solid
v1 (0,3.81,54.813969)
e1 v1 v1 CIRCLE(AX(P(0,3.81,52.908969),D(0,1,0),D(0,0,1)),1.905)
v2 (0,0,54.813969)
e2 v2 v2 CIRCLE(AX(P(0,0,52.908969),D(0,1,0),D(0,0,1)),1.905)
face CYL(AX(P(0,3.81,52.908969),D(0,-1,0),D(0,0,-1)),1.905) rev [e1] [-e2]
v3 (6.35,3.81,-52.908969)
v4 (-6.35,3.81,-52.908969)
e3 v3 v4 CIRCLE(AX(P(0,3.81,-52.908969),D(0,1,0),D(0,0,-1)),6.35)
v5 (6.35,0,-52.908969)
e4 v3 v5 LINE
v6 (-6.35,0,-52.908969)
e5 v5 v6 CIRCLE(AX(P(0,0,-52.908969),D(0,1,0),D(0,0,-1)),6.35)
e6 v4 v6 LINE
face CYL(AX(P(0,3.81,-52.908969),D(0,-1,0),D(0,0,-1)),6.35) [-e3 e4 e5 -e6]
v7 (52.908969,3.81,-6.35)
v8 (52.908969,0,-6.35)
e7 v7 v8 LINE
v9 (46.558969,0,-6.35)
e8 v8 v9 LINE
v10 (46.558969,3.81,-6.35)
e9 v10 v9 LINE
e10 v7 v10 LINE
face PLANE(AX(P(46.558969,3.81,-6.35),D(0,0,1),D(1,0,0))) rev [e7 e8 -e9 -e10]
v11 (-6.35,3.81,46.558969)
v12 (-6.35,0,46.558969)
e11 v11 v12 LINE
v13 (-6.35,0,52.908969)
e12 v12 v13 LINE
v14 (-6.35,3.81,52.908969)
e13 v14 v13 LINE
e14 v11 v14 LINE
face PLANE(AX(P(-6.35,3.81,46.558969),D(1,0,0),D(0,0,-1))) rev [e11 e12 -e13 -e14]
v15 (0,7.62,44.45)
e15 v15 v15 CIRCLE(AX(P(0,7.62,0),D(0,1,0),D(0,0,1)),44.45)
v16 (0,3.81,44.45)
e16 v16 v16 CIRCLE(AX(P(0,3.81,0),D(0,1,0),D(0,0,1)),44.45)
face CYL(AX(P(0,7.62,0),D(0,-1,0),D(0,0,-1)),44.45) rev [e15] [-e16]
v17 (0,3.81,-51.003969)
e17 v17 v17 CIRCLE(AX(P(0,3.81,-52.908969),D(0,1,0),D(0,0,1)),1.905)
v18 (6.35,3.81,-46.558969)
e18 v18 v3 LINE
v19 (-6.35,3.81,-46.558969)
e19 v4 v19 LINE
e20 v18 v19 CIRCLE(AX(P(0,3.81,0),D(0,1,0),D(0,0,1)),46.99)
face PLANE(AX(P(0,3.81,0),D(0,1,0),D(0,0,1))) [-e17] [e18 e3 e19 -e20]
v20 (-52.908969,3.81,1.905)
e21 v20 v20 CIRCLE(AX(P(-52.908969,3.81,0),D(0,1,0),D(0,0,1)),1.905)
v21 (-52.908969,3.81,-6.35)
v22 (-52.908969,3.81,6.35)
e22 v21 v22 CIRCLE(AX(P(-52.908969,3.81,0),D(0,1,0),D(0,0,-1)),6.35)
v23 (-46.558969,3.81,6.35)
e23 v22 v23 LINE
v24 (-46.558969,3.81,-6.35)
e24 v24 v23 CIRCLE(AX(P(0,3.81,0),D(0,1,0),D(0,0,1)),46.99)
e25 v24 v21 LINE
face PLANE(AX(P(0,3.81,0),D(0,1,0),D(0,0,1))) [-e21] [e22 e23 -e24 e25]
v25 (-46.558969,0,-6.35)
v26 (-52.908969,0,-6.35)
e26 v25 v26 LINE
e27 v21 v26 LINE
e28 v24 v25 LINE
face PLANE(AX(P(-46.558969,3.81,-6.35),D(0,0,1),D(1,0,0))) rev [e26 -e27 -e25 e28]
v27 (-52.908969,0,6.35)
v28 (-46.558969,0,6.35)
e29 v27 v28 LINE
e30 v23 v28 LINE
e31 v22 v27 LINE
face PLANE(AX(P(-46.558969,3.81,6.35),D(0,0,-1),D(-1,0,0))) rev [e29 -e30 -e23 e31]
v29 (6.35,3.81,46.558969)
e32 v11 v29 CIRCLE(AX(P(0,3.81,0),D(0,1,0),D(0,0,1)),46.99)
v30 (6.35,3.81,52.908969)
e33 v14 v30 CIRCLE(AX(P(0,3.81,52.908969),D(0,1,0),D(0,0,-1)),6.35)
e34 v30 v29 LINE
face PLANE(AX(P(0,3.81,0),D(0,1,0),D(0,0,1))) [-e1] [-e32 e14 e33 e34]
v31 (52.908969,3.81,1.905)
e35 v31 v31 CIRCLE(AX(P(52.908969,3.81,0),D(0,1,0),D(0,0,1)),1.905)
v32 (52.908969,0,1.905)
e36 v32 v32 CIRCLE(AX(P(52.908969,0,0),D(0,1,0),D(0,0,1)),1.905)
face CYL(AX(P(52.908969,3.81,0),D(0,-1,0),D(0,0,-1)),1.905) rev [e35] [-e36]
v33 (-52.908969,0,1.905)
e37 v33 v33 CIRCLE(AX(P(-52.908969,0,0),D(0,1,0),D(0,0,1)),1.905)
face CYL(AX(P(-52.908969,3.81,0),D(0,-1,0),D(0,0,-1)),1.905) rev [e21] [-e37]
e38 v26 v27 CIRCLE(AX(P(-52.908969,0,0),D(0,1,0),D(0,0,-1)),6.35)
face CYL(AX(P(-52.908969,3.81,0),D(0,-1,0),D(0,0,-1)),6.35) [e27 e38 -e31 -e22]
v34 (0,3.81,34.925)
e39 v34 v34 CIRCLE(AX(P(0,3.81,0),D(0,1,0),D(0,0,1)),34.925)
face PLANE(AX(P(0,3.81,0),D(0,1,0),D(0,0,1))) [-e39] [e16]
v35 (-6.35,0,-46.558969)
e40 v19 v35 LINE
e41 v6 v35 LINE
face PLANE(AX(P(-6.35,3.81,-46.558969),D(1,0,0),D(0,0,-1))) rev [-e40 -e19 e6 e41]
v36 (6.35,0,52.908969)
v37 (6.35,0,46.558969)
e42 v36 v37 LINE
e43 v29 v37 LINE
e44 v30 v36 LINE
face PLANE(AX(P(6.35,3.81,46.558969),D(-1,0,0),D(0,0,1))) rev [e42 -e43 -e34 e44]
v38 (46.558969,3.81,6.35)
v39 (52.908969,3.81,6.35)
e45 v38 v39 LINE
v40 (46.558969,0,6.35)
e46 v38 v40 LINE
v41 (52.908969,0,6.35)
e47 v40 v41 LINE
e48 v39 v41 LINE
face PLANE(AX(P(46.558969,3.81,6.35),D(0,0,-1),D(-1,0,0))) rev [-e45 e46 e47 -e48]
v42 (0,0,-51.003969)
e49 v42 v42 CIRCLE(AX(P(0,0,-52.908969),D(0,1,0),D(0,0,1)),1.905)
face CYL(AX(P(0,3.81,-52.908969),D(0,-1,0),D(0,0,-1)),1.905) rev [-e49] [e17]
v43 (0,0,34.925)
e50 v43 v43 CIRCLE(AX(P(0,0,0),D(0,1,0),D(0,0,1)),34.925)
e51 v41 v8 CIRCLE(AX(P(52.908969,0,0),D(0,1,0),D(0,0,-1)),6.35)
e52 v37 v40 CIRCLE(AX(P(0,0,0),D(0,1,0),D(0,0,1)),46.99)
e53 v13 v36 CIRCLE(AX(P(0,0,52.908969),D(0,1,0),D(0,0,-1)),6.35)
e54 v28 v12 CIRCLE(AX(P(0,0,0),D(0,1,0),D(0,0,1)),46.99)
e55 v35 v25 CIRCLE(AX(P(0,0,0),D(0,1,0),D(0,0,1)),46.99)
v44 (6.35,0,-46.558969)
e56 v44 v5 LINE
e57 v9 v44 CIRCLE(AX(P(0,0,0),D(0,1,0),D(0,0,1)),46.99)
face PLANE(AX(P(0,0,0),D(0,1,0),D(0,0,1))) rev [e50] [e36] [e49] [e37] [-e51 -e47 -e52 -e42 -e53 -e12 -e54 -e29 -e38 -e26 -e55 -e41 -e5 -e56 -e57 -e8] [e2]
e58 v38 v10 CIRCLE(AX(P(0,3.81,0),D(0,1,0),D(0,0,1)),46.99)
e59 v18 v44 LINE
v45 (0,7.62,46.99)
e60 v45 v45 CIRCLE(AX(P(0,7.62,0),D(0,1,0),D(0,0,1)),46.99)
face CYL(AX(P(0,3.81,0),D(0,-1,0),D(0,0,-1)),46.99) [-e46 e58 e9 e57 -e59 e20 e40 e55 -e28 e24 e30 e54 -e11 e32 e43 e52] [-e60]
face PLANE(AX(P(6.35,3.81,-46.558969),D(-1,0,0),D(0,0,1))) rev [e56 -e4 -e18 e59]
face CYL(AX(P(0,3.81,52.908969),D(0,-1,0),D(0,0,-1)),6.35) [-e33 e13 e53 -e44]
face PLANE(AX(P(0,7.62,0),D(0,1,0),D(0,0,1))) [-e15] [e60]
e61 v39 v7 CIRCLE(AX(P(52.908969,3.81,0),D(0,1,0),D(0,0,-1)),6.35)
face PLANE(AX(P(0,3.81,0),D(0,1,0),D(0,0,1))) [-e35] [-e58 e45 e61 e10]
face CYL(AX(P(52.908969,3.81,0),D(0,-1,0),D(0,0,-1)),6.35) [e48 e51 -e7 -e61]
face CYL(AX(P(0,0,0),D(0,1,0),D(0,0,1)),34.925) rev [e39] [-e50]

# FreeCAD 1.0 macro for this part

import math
import FreeCAD as App
import Part
import Sketcher

V = App.Vector
Q = App.Units.Quantity

doc = App.newDocument("Part")
params = doc.addObject("Spreadsheet::Sheet", "Params")
for row, (alias, value) in enumerate([
    ("sketch1_diameter", "0.15 in"),
    ("sketch1_radius", "1.85 in"),
    ("sketch1_radius2", "0.25 in"),
    ("sketch1_width", "0.25 in"),
    ("pad1_length", "0.15 in"),
    ("sketch2_diameter", "2.75 in"),
    ("sketch3_diameter", "3.7 in"),
    ("sketch3_diameter2", "3.5 in"),
    ("pad2_length", "0.15 in"),
], start=1):
    params.set(f"A{row}", alias)
    params.set(f"B{row}", "=" + value)
    params.setAlias(f"B{row}", alias)

body = doc.addObject("PartDesign::Body", "Body")

# Sketch on XZ plane
sketch1 = body.newObject("Sketcher::SketchObject", "Sketch")
sketch1.AttachmentSupport = (doc.getObject("XZ_Plane"), [""])
sketch1.MapMode = "FlatFace"
sketch1.addGeometry([
    Part.LineSegment(V(52.9, -6.3, 0), V(46.6, -6.3, 0)),  # 0
    Part.ArcOfCircle(Part.Circle(V(0, 0, 0), V(0, 0, 1), 47), math.radians(-82), math.radians(-8)),  # 1
    Part.LineSegment(V(6.3, -46.6, 0), V(6.3, -52.9, 0)),  # 2
    Part.ArcOfCircle(Part.Circle(V(0, -52.9, 0), V(0, 0, 1), 6.3), math.radians(180), math.radians(360)),  # 3
    Part.LineSegment(V(-6.3, -52.9, 0), V(-6.3, -46.6, 0)),  # 4
    Part.ArcOfCircle(Part.Circle(V(0, 0, 0), V(0, 0, 1), 47), math.radians(-172), math.radians(-98)),  # 5
    Part.LineSegment(V(-46.6, -6.3, 0), V(-52.9, -6.3, 0)),  # 6
    Part.ArcOfCircle(Part.Circle(V(-52.9, 0, 0), V(0, 0, 1), 6.3), math.radians(90), math.radians(270)),  # 7
    Part.LineSegment(V(-52.9, 6.3, 0), V(-46.6, 6.3, 0)),  # 8
    Part.ArcOfCircle(Part.Circle(V(0, 0, 0), V(0, 0, 1), 47), math.radians(98), math.radians(172)),  # 9
    Part.LineSegment(V(-6.3, 46.6, 0), V(-6.3, 52.9, 0)),  # 10
    Part.ArcOfCircle(Part.Circle(V(0, 52.9, 0), V(0, 0, 1), 6.3), math.radians(0), math.radians(180)),  # 11
    Part.LineSegment(V(6.3, 52.9, 0), V(6.3, 46.6, 0)),  # 12
    Part.ArcOfCircle(Part.Circle(V(0, 0, 0), V(0, 0, 1), 47), math.radians(8), math.radians(82)),  # 13
    Part.LineSegment(V(46.6, 6.3, 0), V(52.9, 6.3, 0)),  # 14
    Part.ArcOfCircle(Part.Circle(V(52.9, 0, 0), V(0, 0, 1), 6.3), math.radians(-90), math.radians(90)),  # 15
    Part.Circle(V(0, 52.9, 0), V(0, 0, 1), 1.9),  # 16
    Part.Circle(V(52.9, 0, 0), V(0, 0, 1), 1.9),  # 17
    Part.Circle(V(-52.9, 0, 0), V(0, 0, 1), 1.9),  # 18
    Part.Circle(V(0, -52.9, 0), V(0, 0, 1), 1.9),  # 19
], False)
sketch1.addConstraint([
    Sketcher.Constraint("Coincident", 0, 2, 1, 2),
    Sketcher.Constraint("Coincident", 1, 1, 2, 1),
    Sketcher.Constraint("Tangent", 2, 2, 3, 2),
    Sketcher.Constraint("Tangent", 3, 1, 4, 1),
    Sketcher.Constraint("Coincident", 4, 2, 5, 2),
    Sketcher.Constraint("Coincident", 5, 1, 6, 1),
    Sketcher.Constraint("Tangent", 6, 2, 7, 2),
    Sketcher.Constraint("Tangent", 7, 1, 8, 1),
    Sketcher.Constraint("Coincident", 8, 2, 9, 2),
    Sketcher.Constraint("Coincident", 9, 1, 10, 1),
    Sketcher.Constraint("Tangent", 10, 2, 11, 2),
    Sketcher.Constraint("Tangent", 11, 1, 12, 1),
    Sketcher.Constraint("Coincident", 12, 2, 13, 2),
    Sketcher.Constraint("Coincident", 13, 1, 14, 1),
    Sketcher.Constraint("Tangent", 14, 2, 15, 2),
    Sketcher.Constraint("Tangent", 15, 1, 0, 1),
    Sketcher.Constraint("Horizontal", 0),
    Sketcher.Constraint("Vertical", 2),
    Sketcher.Constraint("Vertical", 4),
    Sketcher.Constraint("Horizontal", 6),
    Sketcher.Constraint("Horizontal", 8),
    Sketcher.Constraint("Vertical", 10),
    Sketcher.Constraint("Vertical", 12),
    Sketcher.Constraint("Horizontal", 14),
    Sketcher.Constraint("Coincident", 1, 3, -1, 1),
    Sketcher.Constraint("Coincident", 5, 3, -1, 1),
    Sketcher.Constraint("Coincident", 9, 3, -1, 1),
    Sketcher.Constraint("Coincident", 13, 3, -1, 1),
    Sketcher.Constraint("Coincident", 16, 3, 11, 3),
    Sketcher.Constraint("Coincident", 17, 3, 15, 3),
    Sketcher.Constraint("Coincident", 18, 3, 7, 3),
    Sketcher.Constraint("Coincident", 19, 3, 3, 3),
    Sketcher.Constraint("Equal", 1, 5),
    Sketcher.Constraint("Equal", 3, 7),
    Sketcher.Constraint("Equal", 5, 9),
    Sketcher.Constraint("Equal", 7, 11),
    Sketcher.Constraint("Equal", 9, 13),
    Sketcher.Constraint("Equal", 11, 15),
    Sketcher.Constraint("Equal", 16, 17),
    Sketcher.Constraint("Equal", 17, 18),
    Sketcher.Constraint("Equal", 18, 19),
    Sketcher.Constraint("Symmetric", 3, 3, 11, 3, -1, 1),
    Sketcher.Constraint("Symmetric", 7, 3, 15, 3, -1, 1),
    Sketcher.Constraint("PointOnObject", 3, 3, -2),
    Sketcher.Constraint("PointOnObject", 7, 3, -1),
    Sketcher.Constraint("Equal", 14, 2),
    Sketcher.Constraint("Diameter", 16, Q("0.15 in")),
    Sketcher.Constraint("Radius", 1, Q("1.85 in")),
    Sketcher.Constraint("Radius", 3, Q("0.25 in")),
    Sketcher.Constraint("DistanceX", 0, 2, 0, 1, Q("0.25 in")),
])
sketch1.setExpression("Constraints[46]", "Params.sketch1_diameter")
sketch1.setExpression("Constraints[47]", "Params.sketch1_radius")
sketch1.setExpression("Constraints[48]", "Params.sketch1_radius2")
sketch1.setExpression("Constraints[49]", "Params.sketch1_width")
pad1 = body.newObject("PartDesign::Pad", "Pad")
pad1.Profile = sketch1
pad1.setExpression("Length", "Params.pad1_length")
pad1.Reversed = True

# Sketch on XZ plane
sketch2 = body.newObject("Sketcher::SketchObject", "Sketch001")
sketch2.AttachmentSupport = (doc.getObject("XZ_Plane"), [""])
sketch2.MapMode = "FlatFace"
sketch2.AttachmentOffset = App.Placement(V(0, 0, -0.15 * 25.4), App.Rotation())
sketch2.addGeometry(Part.Circle(V(0, 0, 0), V(0, 0, 1), 35), False)
sketch2.addConstraint([
    Sketcher.Constraint("Coincident", 0, 3, -1, 1),
    Sketcher.Constraint("Diameter", 0, Q("2.75 in")),
])
sketch2.setExpression("Constraints[1]", "Params.sketch2_diameter")
pocket1 = body.newObject("PartDesign::Pocket", "Pocket")
pocket1.Profile = sketch2
pocket1.Type = "ThroughAll"
pocket1.Reversed = True

# Sketch on XZ plane
sketch3 = body.newObject("Sketcher::SketchObject", "Sketch002")
sketch3.AttachmentSupport = (doc.getObject("XZ_Plane"), [""])
sketch3.MapMode = "FlatFace"
sketch3.AttachmentOffset = App.Placement(V(0, 0, -0.15 * 25.4), App.Rotation())
sketch3.addGeometry([
    Part.Circle(V(0, 0, 0), V(0, 0, 1), 47),
    Part.Circle(V(0, 0, 0), V(0, 0, 1), 44),
], False)
sketch3.addConstraint([
    Sketcher.Constraint("Coincident", 0, 3, -1, 1),
    Sketcher.Constraint("Coincident", 1, 3, -1, 1),
    Sketcher.Constraint("Diameter", 0, Q("3.7 in")),
    Sketcher.Constraint("Diameter", 1, Q("3.5 in")),
])
sketch3.setExpression("Constraints[2]", "Params.sketch3_diameter")
sketch3.setExpression("Constraints[3]", "Params.sketch3_diameter2")
pad2 = body.newObject("PartDesign::Pad", "Pad001")
pad2.Profile = sketch3
pad2.setExpression("Length", "Params.pad2_length")
pad2.Reversed = True

doc.recompute()
